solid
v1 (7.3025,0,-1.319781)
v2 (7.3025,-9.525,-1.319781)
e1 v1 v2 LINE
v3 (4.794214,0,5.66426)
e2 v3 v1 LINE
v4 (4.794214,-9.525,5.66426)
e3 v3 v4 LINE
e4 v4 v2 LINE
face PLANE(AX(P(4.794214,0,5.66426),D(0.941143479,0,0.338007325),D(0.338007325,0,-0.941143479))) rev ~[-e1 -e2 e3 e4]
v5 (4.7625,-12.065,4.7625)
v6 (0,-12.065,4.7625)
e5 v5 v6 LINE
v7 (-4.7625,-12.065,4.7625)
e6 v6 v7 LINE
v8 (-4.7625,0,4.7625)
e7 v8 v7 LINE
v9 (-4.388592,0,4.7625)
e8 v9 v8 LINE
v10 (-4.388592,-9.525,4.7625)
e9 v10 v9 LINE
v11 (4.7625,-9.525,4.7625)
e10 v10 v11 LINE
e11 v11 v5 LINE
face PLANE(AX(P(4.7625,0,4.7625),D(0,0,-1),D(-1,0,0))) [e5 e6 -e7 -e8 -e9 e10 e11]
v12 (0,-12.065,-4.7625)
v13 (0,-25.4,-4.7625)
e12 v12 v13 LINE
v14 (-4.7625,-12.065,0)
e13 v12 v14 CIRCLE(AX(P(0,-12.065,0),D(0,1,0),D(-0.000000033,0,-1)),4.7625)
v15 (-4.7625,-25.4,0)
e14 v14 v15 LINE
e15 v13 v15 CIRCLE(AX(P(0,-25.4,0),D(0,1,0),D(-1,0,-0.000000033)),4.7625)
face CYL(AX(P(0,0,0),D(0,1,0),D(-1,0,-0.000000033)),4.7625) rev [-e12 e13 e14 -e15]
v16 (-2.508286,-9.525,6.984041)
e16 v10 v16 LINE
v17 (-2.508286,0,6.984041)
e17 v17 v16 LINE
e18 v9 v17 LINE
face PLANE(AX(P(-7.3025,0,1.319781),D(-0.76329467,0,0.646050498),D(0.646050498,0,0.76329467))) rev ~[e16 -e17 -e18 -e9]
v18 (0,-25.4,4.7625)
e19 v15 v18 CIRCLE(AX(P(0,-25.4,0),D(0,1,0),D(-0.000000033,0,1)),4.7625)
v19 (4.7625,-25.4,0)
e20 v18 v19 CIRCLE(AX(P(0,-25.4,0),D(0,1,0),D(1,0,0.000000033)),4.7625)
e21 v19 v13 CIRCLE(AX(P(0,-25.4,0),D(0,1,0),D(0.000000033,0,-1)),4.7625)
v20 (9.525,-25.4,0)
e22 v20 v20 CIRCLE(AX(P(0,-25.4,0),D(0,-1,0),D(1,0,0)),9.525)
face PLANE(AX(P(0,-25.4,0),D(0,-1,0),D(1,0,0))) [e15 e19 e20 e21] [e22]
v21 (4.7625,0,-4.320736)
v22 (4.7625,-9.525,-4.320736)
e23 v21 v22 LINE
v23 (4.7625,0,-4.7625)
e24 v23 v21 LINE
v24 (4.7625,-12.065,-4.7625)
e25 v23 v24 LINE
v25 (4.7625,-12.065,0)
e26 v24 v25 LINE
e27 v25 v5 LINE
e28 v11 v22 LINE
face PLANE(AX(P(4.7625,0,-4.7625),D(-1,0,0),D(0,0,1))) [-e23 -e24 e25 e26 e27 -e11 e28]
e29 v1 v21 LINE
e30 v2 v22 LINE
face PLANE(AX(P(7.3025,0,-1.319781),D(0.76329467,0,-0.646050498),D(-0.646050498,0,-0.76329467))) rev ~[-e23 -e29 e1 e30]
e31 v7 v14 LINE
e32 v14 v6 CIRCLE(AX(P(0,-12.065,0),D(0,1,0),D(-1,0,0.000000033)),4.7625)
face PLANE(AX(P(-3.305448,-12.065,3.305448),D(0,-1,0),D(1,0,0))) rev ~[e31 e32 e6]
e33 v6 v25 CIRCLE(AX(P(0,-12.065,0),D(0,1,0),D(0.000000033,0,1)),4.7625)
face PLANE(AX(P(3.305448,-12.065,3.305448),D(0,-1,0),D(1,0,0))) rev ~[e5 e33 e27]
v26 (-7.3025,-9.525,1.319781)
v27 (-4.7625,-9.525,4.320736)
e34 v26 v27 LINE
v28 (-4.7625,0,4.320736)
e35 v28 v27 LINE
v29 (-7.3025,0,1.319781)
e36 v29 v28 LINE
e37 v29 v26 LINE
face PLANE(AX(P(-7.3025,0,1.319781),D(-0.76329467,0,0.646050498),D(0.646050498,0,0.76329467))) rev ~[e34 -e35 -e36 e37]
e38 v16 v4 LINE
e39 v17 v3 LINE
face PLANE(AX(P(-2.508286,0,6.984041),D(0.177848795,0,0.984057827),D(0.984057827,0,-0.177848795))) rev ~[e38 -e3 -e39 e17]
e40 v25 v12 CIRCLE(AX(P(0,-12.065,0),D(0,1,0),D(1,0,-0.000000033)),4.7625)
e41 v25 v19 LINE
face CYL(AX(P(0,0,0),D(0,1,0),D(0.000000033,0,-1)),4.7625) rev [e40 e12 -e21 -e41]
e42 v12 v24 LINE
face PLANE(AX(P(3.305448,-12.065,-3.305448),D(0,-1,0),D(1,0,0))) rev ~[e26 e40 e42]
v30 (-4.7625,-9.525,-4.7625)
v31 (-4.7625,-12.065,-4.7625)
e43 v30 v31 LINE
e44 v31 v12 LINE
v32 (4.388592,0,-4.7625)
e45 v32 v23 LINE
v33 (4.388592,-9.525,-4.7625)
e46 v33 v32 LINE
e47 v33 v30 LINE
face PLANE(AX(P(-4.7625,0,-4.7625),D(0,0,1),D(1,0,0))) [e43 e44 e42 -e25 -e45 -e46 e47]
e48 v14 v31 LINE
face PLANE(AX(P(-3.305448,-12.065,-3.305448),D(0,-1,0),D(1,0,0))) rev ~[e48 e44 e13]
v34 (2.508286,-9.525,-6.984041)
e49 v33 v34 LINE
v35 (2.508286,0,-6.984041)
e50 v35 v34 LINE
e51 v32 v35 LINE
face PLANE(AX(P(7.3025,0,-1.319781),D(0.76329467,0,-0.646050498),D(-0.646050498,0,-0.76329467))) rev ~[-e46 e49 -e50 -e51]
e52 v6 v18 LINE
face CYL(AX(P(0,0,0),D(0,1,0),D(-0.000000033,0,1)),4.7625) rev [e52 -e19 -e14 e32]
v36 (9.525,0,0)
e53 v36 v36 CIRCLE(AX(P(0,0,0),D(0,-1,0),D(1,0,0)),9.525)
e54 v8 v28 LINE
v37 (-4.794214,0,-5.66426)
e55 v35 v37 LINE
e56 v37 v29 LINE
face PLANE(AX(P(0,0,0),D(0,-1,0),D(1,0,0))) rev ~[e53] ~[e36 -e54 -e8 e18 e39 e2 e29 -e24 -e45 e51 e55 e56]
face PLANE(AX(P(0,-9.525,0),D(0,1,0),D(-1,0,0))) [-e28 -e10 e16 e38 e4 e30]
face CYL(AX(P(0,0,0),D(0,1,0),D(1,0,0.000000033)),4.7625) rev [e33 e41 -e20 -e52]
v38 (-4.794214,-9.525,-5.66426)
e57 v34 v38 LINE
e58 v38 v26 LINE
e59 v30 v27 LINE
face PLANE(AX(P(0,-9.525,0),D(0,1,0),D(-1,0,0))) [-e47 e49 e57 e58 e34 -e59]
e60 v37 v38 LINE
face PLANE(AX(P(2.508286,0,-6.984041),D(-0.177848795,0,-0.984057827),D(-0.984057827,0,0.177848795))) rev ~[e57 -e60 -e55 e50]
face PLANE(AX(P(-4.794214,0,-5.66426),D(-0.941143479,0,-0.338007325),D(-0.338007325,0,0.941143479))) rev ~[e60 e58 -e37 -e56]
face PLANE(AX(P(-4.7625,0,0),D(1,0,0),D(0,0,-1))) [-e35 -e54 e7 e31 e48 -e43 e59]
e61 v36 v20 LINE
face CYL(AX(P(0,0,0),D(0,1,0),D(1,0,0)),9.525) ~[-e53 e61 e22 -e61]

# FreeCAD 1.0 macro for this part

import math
import FreeCAD as App
import Part
import Sketcher
Q = App.Units.Quantity

doc = App.newDocument("Part")
params = doc.addObject("Spreadsheet::Sheet", "Params")
for row, (alias, value) in enumerate([
    ("sketch1_diameter", "0.75 in"),
    ("pad1_length", "1 in"),
    ("sketch2_radius", "0.1875 in"),
    ("sketch3_radius", "0.1875 in"),
    ("pocket2_length", "0.475 in"),
    ("pocket3_length", "0.375 in"),
], start=1):
    params.set(f"A{row}", alias)
    params.set(f"B{row}", "=" + value)
    params.setAlias(f"B{row}", alias)

body = doc.addObject("PartDesign::Body", "Body")

sketch1 = doc.addObject("Sketcher::SketchObject", "Sketch")
body.addObject(sketch1)
sketch1.AttachmentSupport = (doc.XZ_Plane, [""])
sketch1.MapMode = "FlatFace"
sketch1.addGeometry(Part.Circle(App.Vector(0, 0, 0), App.Vector(0, 0, 1), 9.525), False)
sketch1.addConstraint([
    Sketcher.Constraint("Coincident", 0, 3, -1, 1),
    Sketcher.Constraint("Diameter", 0, Q("0.75 in")),
])
sketch1.setExpression("Constraints[1]", "Params.sketch1_diameter")
pad1 = doc.addObject("PartDesign::Pad", "Pad")
body.addObject(pad1)
pad1.Profile = sketch1
pad1.setExpression("Length", "Params.pad1_length")

sketch2 = doc.addObject("Sketcher::SketchObject", "Sketch001")
body.addObject(sketch2)
sketch2.AttachmentSupport = (doc.XZ_Plane, [""])
sketch2.MapMode = "FlatFace"
sketch2.addGeometry([
    Part.ArcOfCircle(Part.Circle(App.Vector(0, 0, 0), App.Vector(0, 0, 1), 4.7625), math.radians(-179.999998), math.radians(-90.000002)),
    Part.ArcOfCircle(Part.Circle(App.Vector(0, 0, 0), App.Vector(0, 0, 1), 4.7625), math.radians(-89.999998), math.radians(-0.000002)),
    Part.ArcOfCircle(Part.Circle(App.Vector(0, 0, 0), App.Vector(0, 0, 1), 4.7625), math.radians(0.000002), math.radians(89.999998)),
    Part.ArcOfCircle(Part.Circle(App.Vector(0, 0, 0), App.Vector(0, 0, 1), 4.7625), math.radians(90.000002), math.radians(179.999998)),
], False)
sketch2.addConstraint([
    Sketcher.Constraint("Tangent", 0, 2, 1, 1),
    Sketcher.Constraint("Tangent", 1, 2, 2, 1),
    Sketcher.Constraint("Tangent", 2, 2, 3, 1),
    Sketcher.Constraint("Tangent", 3, 2, 0, 1),
    Sketcher.Constraint("Coincident", 0, 3, -1, 1),
    Sketcher.Constraint("Equal", 0, 1),
    Sketcher.Constraint("PointOnObject", 0, 2, -2),
    Sketcher.Constraint("PointOnObject", 1, 2, -1),
    Sketcher.Constraint("PointOnObject", 2, 2, -2),
    Sketcher.Constraint("PointOnObject", 3, 2, -1),
    Sketcher.Constraint("Radius", 0, Q("0.1875 in")),
])
sketch2.setExpression("Constraints[10]", "Params.sketch2_radius")
pocket1 = doc.addObject("PartDesign::Pocket", "Pocket")
body.addObject(pocket1)
pocket1.Profile = sketch2
pocket1.Type = "ThroughAll"
pocket1.Reversed = True

sketch3 = doc.addObject("Sketcher::SketchObject", "Sketch002")
body.addObject(sketch3)
sketch3.AttachmentSupport = (doc.XZ_Plane, [""])
sketch3.MapMode = "FlatFace"
sketch3.addGeometry([
    Part.LineSegment(App.Vector(0, -4.7625, 0), App.Vector(4.7625, -4.7625, 0)),
    Part.LineSegment(App.Vector(4.7625, -4.7625, 0), App.Vector(4.7625, 0, 0)),
    Part.ArcOfCircle(Part.Circle(App.Vector(0, 0, 0), App.Vector(0, 0, 1), 4.7625), math.radians(-89.999998), math.radians(-0.000002)),
    Part.LineSegment(App.Vector(-4.7625, -4.7625, 0), App.Vector(0, -4.7625, 0)),
    Part.ArcOfCircle(Part.Circle(App.Vector(0, 0, 0), App.Vector(0, 0, 1), 4.7625), math.radians(-179.999998), math.radians(-90.000002)),
    Part.LineSegment(App.Vector(-4.7625, 0, 0), App.Vector(-4.7625, -4.7625, 0)),
    Part.ArcOfCircle(Part.Circle(App.Vector(0, 0, 0), App.Vector(0, 0, 1), 4.7625), math.radians(0.000002), math.radians(89.999998)),
    Part.LineSegment(App.Vector(4.7625, 0, 0), App.Vector(4.7625, 4.7625, 0)),
    Part.LineSegment(App.Vector(4.7625, 4.7625, 0), App.Vector(0, 4.7625, 0)),
    Part.LineSegment(App.Vector(-4.7625, 4.7625, 0), App.Vector(-4.7625, 0, 0)),
    Part.ArcOfCircle(Part.Circle(App.Vector(0, 0, 0), App.Vector(0, 0, 1), 4.7625), math.radians(90.000002), math.radians(179.999998)),
    Part.LineSegment(App.Vector(0, 4.7625, 0), App.Vector(-4.7625, 4.7625, 0)),
], False)
sketch3.addConstraint([
    Sketcher.Constraint("Coincident", 0, 2, 1, 1),
    Sketcher.Constraint("Tangent", 1, 2, 2, 2),
    Sketcher.Constraint("Tangent", 2, 1, 0, 1),
    Sketcher.Constraint("Tangent", 3, 2, 4, 2),
    Sketcher.Constraint("Tangent", 4, 1, 5, 1),
    Sketcher.Constraint("Coincident", 5, 2, 3, 1),
    Sketcher.Constraint("Tangent", 6, 1, 7, 1),
    Sketcher.Constraint("Coincident", 7, 2, 8, 1),
    Sketcher.Constraint("Tangent", 8, 2, 6, 2),
    Sketcher.Constraint("Tangent", 9, 2, 10, 2),
    Sketcher.Constraint("Tangent", 10, 1, 11, 1),
    Sketcher.Constraint("Coincident", 11, 2, 9, 1),
    Sketcher.Constraint("Horizontal", 0),
    Sketcher.Constraint("Vertical", 1),
    Sketcher.Constraint("Horizontal", 3),
    Sketcher.Constraint("Vertical", 5),
    Sketcher.Constraint("Vertical", 7),
    Sketcher.Constraint("Horizontal", 8),
    Sketcher.Constraint("Vertical", 9),
    Sketcher.Constraint("Horizontal", 11),
    Sketcher.Constraint("Coincident", 2, 3, -1, 1),
    Sketcher.Constraint("Coincident", 4, 3, -1, 1),
    Sketcher.Constraint("Coincident", 6, 3, -1, 1),
    Sketcher.Constraint("Coincident", 10, 3, -1, 1),
    Sketcher.Constraint("Equal", 2, 4),
    Sketcher.Constraint("Equal", 4, 6),
    Sketcher.Constraint("Equal", 6, 10),
    Sketcher.Constraint("Radius", 2, Q("0.1875 in")),
])
sketch3.setExpression("Constraints[27]", "Params.sketch3_radius")
pocket2 = doc.addObject("PartDesign::Pocket", "Pocket001")
body.addObject(pocket2)
pocket2.Profile = sketch3
pocket2.setExpression("Length", "Params.pocket2_length")
pocket2.Reversed = True

sketch4 = doc.addObject("Sketcher::SketchObject", "Sketch003")
body.addObject(sketch4)
sketch4.AttachmentSupport = (doc.XZ_Plane, [""])
sketch4.MapMode = "FlatFace"
sketch4.addGeometry([
    Part.LineSegment(App.Vector(-4.794214, -5.66426, 0), App.Vector(-7.3025, 1.319781, 0)),
    Part.LineSegment(App.Vector(-7.3025, 1.319781, 0), App.Vector(-2.508286, 6.984041, 0)),
    Part.LineSegment(App.Vector(-2.508286, 6.984041, 0), App.Vector(4.794214, 5.66426, 0)),
    Part.LineSegment(App.Vector(4.794214, 5.66426, 0), App.Vector(7.3025, -1.319781, 0)),
    Part.LineSegment(App.Vector(7.3025, -1.319781, 0), App.Vector(2.508286, -6.984041, 0)),
    Part.LineSegment(App.Vector(2.508286, -6.984041, 0), App.Vector(-4.794214, -5.66426, 0)),
], False)
sketch4.addConstraint([
    Sketcher.Constraint("Coincident", 0, 2, 1, 1),
    Sketcher.Constraint("Coincident", 1, 2, 2, 1),
    Sketcher.Constraint("Coincident", 2, 2, 3, 1),
    Sketcher.Constraint("Coincident", 3, 2, 4, 1),
    Sketcher.Constraint("Coincident", 4, 2, 5, 1),
    Sketcher.Constraint("Coincident", 5, 2, 0, 1),
    Sketcher.Constraint("Symmetric", 0, 2, 3, 2, -1, 1),
    Sketcher.Constraint("Symmetric", 1, 2, 4, 2, -1, 1),
    Sketcher.Constraint("Symmetric", 2, 2, 5, 2, -1, 1),
    Sketcher.Constraint("Equal", 0, 1),
    Sketcher.Constraint("Equal", 1, 2),
    Sketcher.Constraint("DistanceX", 0, 2, 3, 2, Q("0.575 in")),
    Sketcher.Constraint("DistanceX", 1, 2, 2, 2, Q("0.2875 in")),
    Sketcher.Constraint("DistanceY", 4, 2, 2, 2, 12.648301),
    Sketcher.Constraint("DistanceY", -1, 1, 0, 2, 1.319781),
])
pocket3 = doc.addObject("PartDesign::Pocket", "Pocket002")
body.addObject(pocket3)
pocket3.Profile = sketch4
pocket3.setExpression("Length", "Params.pocket3_length")
pocket3.Reversed = True

doc.recompute()
